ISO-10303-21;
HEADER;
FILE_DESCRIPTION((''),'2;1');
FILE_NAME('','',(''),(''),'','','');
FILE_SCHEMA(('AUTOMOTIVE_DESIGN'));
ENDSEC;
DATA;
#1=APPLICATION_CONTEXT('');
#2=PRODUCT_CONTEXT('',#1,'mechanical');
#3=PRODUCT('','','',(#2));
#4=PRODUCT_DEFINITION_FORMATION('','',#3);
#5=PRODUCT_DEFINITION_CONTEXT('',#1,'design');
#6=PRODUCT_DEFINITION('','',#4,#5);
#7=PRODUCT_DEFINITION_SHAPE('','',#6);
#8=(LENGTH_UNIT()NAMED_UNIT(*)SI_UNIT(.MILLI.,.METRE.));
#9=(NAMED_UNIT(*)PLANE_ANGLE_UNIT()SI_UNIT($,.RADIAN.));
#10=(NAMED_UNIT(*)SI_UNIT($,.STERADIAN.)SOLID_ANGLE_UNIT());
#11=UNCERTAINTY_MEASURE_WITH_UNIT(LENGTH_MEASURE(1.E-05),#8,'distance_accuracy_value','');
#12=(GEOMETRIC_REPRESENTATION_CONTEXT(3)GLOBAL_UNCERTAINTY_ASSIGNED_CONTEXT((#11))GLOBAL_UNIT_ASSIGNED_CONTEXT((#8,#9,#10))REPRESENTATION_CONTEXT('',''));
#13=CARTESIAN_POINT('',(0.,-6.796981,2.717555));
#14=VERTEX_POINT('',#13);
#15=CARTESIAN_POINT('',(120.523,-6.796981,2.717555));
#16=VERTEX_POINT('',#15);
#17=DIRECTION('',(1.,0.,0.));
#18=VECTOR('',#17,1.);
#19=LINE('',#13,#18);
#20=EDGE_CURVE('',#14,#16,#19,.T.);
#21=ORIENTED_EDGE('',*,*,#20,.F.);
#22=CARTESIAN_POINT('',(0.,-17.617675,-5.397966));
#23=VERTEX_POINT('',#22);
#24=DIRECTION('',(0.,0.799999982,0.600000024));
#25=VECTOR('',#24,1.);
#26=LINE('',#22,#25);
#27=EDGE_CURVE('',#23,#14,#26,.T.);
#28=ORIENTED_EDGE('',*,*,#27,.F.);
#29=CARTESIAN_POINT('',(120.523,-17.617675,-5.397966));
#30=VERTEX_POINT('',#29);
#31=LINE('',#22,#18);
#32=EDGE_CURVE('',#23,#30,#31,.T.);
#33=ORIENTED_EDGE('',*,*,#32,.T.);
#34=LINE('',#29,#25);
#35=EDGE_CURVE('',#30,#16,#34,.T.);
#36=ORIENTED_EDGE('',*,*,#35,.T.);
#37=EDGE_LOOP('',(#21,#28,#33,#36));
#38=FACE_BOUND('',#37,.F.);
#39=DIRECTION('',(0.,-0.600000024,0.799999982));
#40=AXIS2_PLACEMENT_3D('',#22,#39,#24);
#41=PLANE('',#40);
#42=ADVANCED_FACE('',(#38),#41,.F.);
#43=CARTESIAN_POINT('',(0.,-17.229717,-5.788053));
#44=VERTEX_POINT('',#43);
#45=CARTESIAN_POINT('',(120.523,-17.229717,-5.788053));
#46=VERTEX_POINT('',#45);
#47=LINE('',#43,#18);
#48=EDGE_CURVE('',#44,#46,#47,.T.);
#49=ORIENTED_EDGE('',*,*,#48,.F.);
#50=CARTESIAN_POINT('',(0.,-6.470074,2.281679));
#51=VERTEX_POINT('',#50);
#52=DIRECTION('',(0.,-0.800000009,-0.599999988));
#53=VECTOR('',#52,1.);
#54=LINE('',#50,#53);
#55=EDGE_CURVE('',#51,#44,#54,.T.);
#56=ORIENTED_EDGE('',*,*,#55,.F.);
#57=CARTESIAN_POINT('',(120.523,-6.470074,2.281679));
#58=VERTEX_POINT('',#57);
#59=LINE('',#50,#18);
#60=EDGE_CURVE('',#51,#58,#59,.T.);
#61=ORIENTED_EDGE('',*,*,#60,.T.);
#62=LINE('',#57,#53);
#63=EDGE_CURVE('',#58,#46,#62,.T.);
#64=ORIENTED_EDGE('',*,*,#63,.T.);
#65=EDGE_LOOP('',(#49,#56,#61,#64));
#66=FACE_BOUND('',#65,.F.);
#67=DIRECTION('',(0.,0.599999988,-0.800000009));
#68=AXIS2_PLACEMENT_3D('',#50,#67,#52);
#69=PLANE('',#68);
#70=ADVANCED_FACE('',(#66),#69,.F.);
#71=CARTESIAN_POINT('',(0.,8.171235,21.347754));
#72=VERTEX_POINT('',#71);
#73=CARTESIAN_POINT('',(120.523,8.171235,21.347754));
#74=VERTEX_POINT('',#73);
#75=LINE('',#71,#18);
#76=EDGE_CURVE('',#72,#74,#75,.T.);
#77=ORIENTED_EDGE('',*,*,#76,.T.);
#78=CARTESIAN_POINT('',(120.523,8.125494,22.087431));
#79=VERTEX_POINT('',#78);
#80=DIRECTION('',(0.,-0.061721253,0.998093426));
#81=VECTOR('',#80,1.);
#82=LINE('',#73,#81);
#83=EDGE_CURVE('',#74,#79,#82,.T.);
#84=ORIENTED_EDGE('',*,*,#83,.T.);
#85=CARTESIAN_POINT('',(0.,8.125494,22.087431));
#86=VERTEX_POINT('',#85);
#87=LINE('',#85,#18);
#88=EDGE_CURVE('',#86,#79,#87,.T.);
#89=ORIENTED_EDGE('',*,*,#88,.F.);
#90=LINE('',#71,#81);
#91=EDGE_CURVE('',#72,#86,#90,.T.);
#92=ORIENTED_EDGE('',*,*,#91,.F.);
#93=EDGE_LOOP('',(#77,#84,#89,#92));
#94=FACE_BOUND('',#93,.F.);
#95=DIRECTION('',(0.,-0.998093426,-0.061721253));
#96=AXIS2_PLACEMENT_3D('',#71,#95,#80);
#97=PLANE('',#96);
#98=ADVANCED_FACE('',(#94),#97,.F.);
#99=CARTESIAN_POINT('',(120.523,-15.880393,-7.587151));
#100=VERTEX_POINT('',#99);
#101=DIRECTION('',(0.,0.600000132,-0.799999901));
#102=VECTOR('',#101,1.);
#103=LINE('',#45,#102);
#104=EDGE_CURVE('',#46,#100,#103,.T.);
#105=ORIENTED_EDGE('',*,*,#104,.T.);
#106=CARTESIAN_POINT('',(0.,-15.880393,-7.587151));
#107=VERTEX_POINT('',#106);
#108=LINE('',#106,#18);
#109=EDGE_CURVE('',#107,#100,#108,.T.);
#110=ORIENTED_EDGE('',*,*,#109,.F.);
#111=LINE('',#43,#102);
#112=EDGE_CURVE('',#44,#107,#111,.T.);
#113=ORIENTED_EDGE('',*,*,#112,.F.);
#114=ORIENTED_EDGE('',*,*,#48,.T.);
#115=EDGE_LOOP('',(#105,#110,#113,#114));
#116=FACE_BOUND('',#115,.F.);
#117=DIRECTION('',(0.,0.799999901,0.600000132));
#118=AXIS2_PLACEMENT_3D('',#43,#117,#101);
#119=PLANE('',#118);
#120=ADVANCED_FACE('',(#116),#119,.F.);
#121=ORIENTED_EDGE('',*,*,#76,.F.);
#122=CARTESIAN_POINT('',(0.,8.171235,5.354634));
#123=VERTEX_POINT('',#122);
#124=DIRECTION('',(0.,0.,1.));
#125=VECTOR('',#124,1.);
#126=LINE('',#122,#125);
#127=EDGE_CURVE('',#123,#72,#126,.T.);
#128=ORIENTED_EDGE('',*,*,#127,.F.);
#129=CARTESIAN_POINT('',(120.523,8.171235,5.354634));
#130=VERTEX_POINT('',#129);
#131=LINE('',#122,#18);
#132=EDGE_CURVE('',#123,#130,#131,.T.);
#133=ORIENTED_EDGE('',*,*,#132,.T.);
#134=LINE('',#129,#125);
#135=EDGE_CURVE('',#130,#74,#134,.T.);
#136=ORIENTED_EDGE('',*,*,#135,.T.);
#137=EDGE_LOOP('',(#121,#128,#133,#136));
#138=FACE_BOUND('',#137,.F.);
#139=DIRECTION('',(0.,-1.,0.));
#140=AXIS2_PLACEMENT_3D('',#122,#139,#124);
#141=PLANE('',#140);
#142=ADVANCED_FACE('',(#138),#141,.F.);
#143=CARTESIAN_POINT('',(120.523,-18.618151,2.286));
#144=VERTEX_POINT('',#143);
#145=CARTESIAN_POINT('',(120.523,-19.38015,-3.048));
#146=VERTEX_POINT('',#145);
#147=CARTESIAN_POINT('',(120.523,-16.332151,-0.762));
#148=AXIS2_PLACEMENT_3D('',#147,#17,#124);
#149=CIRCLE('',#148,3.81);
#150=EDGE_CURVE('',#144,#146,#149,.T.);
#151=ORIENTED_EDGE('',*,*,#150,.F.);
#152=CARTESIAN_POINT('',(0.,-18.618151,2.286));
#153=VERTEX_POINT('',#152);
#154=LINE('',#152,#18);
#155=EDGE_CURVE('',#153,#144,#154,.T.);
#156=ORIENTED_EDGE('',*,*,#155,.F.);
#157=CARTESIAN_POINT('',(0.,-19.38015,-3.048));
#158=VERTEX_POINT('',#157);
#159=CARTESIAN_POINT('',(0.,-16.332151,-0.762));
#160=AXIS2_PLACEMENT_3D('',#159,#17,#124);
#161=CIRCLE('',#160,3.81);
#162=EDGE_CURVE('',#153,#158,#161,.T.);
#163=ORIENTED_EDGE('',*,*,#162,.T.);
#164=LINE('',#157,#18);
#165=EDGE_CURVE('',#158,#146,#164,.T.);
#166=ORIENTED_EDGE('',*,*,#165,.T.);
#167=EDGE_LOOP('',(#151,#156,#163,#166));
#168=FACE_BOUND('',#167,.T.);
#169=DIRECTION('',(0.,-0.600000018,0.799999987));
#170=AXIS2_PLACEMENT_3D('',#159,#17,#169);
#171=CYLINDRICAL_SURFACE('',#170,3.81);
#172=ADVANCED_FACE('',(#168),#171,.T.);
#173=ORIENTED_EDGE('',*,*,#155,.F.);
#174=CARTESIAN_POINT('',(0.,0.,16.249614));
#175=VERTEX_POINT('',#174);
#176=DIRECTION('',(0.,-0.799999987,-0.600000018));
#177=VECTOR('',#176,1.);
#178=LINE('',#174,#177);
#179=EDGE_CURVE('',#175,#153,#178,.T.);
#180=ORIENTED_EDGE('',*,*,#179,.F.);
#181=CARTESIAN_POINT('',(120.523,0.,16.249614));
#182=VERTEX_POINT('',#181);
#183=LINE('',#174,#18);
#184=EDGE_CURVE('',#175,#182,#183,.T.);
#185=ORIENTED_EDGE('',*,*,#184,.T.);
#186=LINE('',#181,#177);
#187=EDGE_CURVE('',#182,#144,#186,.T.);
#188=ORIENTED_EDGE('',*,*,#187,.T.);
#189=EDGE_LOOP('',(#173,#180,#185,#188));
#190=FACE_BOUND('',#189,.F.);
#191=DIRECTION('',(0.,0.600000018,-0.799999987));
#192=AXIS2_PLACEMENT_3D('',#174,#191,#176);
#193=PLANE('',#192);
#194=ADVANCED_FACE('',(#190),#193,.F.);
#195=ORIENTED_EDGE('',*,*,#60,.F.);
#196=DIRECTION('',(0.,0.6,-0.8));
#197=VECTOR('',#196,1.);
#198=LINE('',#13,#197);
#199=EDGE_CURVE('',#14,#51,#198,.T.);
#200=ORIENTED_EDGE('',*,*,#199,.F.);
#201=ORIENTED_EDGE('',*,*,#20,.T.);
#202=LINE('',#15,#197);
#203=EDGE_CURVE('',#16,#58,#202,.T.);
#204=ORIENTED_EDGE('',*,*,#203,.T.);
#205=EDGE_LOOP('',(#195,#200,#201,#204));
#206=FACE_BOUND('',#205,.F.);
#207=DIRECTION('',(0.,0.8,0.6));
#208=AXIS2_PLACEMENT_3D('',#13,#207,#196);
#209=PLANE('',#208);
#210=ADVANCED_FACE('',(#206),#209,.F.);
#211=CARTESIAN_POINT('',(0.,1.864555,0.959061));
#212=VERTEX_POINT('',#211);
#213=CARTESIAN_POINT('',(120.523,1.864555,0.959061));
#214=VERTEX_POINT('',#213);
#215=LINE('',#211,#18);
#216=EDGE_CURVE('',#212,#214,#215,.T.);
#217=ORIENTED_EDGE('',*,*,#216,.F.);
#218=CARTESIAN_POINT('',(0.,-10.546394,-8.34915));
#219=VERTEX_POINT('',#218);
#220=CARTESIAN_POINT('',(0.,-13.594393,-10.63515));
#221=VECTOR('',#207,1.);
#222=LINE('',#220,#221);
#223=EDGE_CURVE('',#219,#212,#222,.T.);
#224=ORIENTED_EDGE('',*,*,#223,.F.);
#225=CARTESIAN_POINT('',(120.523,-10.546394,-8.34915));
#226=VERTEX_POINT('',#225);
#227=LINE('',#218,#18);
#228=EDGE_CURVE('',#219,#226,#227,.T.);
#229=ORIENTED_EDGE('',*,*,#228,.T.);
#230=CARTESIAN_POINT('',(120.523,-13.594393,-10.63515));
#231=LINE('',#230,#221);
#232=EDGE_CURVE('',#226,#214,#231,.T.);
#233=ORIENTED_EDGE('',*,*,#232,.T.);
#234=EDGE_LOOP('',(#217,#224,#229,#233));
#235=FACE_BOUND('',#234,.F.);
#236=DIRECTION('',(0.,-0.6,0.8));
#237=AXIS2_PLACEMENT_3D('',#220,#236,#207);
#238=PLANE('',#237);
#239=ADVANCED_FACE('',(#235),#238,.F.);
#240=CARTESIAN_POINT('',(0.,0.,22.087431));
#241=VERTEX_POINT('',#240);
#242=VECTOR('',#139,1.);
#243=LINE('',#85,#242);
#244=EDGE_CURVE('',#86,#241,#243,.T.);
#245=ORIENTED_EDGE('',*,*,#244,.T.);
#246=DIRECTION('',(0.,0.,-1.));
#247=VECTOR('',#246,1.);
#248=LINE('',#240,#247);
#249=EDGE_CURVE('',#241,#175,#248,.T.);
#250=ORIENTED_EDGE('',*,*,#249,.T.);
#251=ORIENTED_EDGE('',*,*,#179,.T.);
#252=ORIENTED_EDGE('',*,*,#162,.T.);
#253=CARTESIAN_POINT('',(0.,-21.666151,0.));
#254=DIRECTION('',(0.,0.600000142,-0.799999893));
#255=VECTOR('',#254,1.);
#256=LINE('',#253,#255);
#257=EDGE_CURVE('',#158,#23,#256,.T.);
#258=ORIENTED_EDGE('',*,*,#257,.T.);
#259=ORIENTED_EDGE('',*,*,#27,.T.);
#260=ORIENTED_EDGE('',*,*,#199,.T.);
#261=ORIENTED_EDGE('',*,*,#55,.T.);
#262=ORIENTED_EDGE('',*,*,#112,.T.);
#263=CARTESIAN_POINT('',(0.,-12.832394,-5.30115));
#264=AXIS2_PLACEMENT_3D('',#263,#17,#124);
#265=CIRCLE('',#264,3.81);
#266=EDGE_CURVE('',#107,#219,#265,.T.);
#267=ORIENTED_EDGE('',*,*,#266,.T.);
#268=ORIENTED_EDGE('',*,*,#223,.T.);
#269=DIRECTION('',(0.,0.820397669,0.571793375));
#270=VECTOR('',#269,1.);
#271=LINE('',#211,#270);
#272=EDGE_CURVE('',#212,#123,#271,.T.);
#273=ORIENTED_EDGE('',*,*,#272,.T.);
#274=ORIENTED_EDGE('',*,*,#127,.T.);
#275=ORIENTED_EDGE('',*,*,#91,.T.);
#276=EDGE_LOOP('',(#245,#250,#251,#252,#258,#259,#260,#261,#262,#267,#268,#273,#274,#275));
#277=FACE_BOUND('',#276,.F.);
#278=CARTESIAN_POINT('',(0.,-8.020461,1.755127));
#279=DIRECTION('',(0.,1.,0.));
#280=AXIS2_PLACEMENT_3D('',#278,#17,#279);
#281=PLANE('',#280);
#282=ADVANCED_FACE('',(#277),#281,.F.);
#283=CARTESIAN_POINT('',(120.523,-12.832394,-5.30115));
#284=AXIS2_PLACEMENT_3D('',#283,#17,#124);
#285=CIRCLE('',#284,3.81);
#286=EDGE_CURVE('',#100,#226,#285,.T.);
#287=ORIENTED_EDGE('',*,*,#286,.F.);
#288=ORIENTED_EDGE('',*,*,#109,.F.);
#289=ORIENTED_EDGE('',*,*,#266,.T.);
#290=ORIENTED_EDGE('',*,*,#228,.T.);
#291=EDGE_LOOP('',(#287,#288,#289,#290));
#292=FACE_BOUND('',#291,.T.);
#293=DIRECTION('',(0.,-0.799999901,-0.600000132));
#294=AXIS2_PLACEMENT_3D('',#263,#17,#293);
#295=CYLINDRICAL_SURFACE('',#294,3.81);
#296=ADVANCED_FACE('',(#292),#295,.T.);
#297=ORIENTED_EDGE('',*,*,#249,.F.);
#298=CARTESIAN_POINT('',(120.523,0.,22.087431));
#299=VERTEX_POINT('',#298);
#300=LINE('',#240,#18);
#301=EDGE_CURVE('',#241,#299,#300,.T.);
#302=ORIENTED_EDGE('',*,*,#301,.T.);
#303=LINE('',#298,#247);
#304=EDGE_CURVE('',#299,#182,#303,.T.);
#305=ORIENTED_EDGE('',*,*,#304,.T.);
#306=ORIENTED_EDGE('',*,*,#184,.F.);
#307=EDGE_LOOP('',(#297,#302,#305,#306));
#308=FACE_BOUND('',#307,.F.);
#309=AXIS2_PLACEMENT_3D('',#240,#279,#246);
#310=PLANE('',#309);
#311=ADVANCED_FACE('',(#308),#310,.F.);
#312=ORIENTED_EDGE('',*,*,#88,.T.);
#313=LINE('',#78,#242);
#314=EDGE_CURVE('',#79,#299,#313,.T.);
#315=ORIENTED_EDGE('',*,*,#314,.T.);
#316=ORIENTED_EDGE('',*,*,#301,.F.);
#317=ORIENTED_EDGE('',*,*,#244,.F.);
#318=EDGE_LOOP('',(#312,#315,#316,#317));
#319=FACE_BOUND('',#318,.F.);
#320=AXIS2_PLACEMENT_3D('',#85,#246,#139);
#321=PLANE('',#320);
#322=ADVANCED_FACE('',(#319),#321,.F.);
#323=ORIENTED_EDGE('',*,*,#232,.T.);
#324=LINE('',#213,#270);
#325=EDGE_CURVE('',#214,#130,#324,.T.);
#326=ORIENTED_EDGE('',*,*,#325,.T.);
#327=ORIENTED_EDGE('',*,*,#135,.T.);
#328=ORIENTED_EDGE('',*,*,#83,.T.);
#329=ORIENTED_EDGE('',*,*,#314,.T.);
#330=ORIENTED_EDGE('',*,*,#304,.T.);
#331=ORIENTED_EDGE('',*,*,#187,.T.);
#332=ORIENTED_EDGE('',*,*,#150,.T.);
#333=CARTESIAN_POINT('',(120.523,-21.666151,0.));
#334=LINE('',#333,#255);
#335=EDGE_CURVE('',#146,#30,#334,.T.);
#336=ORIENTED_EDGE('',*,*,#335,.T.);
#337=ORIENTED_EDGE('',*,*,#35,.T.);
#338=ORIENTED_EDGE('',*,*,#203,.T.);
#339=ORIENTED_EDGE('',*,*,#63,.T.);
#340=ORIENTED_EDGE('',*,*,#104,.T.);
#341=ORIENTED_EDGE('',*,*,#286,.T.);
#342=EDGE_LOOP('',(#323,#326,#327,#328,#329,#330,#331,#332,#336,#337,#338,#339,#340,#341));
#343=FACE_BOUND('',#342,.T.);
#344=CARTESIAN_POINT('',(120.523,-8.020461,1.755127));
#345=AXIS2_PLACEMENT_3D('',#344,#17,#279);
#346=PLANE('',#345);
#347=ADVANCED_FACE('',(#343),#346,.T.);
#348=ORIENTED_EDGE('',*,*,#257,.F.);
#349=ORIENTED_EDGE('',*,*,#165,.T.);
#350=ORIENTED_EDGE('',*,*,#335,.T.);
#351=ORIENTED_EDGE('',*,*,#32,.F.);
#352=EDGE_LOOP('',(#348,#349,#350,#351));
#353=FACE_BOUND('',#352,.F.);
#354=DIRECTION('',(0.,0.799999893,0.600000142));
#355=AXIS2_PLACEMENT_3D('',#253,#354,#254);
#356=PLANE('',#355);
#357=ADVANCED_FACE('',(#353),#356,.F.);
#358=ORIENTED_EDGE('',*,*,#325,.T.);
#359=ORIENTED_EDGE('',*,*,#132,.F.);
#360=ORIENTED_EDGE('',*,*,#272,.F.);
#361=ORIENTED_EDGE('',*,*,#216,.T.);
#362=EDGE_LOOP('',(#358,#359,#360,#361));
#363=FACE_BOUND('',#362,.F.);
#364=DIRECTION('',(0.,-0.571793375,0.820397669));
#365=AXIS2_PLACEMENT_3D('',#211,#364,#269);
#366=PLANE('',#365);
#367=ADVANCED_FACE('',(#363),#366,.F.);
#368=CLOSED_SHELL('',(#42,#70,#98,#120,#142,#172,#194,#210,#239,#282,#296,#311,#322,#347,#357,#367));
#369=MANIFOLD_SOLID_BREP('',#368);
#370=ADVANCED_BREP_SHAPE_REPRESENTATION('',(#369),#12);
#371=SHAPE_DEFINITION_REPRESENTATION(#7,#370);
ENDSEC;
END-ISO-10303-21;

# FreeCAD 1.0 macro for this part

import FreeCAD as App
import Part
import Sketcher
from FreeCAD import Vector
Q = App.Units.Quantity


def edges_at(feature, points):
    """Names of the edges that pass closest to the given points."""
    edges = feature.Shape.Edges
    near = lambda p: min(range(len(edges)), key=lambda i: edges[i].distToShape(Part.Vertex(*p))[0])
    return sorted({f"Edge{near(p) + 1}" for p in points})


def add_polygon(sketch, points):
    """Adds a closed chain of lines whose ends are joined by coincident constraints."""
    first, n = sketch.GeometryCount, len(points)
    for a, b in zip(points, points[1:] + points[:1]):
        sketch.addGeometry(Part.LineSegment(App.Vector(*a, 0), App.Vector(*b, 0)), False)
    for i in range(n):
        sketch.addConstraint(Sketcher.Constraint("Coincident", first + i, 2, first + (i + 1) % n, 1))

doc = App.newDocument("Part")
body = doc.addObject("PartDesign::Body", "Body")

# Sketch on YZ plane
sketch1 = body.newObject("Sketcher::SketchObject", "Sketch")
sketch1.AttachmentSupport = (doc.getObject("YZ_Plane"), [""])
sketch1.MapMode = "FlatFace"
add_polygon(sketch1, [(0, 16.249614), (-21.666151, 0), (-17.617675, -5.397966), (-6.796981, 2.717555), (-6.470074, 2.281679), (-17.229717, -5.788053), (-13.594393, -10.63515), (1.864555, 0.959061), (8.171235, 5.354634), (8.171235, 21.347754), (8.125494, 22.087431), (0, 22.087431)])  # lines 0-11
sketch1.addConstraint([
    Sketcher.Constraint("Vertical", 8),
    Sketcher.Constraint("Horizontal", 10),
    Sketcher.Constraint("Vertical", 11),
    Sketcher.Constraint("PointOnObject", 0, 2, -1),
    Sketcher.Constraint("PointOnObject", 10, 2, -2),
    Sketcher.Constraint("Perpendicular", 0, 1),
    Sketcher.Constraint("Perpendicular", 1, 2),
    Sketcher.Constraint("Perpendicular", 2, 3),
    Sketcher.Constraint("Perpendicular", 3, 4),
    Sketcher.Constraint("Perpendicular", 4, 5),
    Sketcher.Constraint("Perpendicular", 5, 6),
    Sketcher.Constraint("DistanceX", 2, 2, 7, 2, Q("0.5892998 in")),
    Sketcher.Constraint("DistanceY", 8, 1, 8, 2, 15.99312),
    Sketcher.Constraint("DistanceX", 1, 2, 3, 2, 11.147601),
    Sketcher.Constraint("DistanceY", 2, 2, 8, 2, 18.630199),
    Sketcher.Constraint("Distance", 0, 27.082689),
    Sketcher.Constraint("Distance", 1, 6.747458),
    Sketcher.Constraint("Distance", 9, 0.74109),
    Sketcher.Constraint("DistanceX", 10, 2, 10, 1, 8.125494),
    Sketcher.Constraint("DistanceY", 11, 2, 11, 1, 5.837817),
    Sketcher.Constraint("DistanceX", 0, 2, -1, 1, 21.666151),
    Sketcher.Constraint("DistanceY", 5, 2, -1, 1, 10.63515),
    Sketcher.Constraint("DistanceY", -1, 1, 6, 2, 0.959061),
    Sketcher.Constraint("DistanceX", 1, 2, 5, 2, 4.023282),
])
pad1 = body.newObject("PartDesign::Pad", "Pad")
pad1.Profile = sketch1
pad1.Length = Q("4.745 in")
doc.recompute()

fillet = body.newObject("PartDesign::Fillet", "Fillet")
fillet.Base = (pad1, edges_at(pad1, [(60.261, -21.666, 0), (60.261, -13.594, -10.635)]))
fillet.Radius = Q("0.15 in")

doc.recompute()
